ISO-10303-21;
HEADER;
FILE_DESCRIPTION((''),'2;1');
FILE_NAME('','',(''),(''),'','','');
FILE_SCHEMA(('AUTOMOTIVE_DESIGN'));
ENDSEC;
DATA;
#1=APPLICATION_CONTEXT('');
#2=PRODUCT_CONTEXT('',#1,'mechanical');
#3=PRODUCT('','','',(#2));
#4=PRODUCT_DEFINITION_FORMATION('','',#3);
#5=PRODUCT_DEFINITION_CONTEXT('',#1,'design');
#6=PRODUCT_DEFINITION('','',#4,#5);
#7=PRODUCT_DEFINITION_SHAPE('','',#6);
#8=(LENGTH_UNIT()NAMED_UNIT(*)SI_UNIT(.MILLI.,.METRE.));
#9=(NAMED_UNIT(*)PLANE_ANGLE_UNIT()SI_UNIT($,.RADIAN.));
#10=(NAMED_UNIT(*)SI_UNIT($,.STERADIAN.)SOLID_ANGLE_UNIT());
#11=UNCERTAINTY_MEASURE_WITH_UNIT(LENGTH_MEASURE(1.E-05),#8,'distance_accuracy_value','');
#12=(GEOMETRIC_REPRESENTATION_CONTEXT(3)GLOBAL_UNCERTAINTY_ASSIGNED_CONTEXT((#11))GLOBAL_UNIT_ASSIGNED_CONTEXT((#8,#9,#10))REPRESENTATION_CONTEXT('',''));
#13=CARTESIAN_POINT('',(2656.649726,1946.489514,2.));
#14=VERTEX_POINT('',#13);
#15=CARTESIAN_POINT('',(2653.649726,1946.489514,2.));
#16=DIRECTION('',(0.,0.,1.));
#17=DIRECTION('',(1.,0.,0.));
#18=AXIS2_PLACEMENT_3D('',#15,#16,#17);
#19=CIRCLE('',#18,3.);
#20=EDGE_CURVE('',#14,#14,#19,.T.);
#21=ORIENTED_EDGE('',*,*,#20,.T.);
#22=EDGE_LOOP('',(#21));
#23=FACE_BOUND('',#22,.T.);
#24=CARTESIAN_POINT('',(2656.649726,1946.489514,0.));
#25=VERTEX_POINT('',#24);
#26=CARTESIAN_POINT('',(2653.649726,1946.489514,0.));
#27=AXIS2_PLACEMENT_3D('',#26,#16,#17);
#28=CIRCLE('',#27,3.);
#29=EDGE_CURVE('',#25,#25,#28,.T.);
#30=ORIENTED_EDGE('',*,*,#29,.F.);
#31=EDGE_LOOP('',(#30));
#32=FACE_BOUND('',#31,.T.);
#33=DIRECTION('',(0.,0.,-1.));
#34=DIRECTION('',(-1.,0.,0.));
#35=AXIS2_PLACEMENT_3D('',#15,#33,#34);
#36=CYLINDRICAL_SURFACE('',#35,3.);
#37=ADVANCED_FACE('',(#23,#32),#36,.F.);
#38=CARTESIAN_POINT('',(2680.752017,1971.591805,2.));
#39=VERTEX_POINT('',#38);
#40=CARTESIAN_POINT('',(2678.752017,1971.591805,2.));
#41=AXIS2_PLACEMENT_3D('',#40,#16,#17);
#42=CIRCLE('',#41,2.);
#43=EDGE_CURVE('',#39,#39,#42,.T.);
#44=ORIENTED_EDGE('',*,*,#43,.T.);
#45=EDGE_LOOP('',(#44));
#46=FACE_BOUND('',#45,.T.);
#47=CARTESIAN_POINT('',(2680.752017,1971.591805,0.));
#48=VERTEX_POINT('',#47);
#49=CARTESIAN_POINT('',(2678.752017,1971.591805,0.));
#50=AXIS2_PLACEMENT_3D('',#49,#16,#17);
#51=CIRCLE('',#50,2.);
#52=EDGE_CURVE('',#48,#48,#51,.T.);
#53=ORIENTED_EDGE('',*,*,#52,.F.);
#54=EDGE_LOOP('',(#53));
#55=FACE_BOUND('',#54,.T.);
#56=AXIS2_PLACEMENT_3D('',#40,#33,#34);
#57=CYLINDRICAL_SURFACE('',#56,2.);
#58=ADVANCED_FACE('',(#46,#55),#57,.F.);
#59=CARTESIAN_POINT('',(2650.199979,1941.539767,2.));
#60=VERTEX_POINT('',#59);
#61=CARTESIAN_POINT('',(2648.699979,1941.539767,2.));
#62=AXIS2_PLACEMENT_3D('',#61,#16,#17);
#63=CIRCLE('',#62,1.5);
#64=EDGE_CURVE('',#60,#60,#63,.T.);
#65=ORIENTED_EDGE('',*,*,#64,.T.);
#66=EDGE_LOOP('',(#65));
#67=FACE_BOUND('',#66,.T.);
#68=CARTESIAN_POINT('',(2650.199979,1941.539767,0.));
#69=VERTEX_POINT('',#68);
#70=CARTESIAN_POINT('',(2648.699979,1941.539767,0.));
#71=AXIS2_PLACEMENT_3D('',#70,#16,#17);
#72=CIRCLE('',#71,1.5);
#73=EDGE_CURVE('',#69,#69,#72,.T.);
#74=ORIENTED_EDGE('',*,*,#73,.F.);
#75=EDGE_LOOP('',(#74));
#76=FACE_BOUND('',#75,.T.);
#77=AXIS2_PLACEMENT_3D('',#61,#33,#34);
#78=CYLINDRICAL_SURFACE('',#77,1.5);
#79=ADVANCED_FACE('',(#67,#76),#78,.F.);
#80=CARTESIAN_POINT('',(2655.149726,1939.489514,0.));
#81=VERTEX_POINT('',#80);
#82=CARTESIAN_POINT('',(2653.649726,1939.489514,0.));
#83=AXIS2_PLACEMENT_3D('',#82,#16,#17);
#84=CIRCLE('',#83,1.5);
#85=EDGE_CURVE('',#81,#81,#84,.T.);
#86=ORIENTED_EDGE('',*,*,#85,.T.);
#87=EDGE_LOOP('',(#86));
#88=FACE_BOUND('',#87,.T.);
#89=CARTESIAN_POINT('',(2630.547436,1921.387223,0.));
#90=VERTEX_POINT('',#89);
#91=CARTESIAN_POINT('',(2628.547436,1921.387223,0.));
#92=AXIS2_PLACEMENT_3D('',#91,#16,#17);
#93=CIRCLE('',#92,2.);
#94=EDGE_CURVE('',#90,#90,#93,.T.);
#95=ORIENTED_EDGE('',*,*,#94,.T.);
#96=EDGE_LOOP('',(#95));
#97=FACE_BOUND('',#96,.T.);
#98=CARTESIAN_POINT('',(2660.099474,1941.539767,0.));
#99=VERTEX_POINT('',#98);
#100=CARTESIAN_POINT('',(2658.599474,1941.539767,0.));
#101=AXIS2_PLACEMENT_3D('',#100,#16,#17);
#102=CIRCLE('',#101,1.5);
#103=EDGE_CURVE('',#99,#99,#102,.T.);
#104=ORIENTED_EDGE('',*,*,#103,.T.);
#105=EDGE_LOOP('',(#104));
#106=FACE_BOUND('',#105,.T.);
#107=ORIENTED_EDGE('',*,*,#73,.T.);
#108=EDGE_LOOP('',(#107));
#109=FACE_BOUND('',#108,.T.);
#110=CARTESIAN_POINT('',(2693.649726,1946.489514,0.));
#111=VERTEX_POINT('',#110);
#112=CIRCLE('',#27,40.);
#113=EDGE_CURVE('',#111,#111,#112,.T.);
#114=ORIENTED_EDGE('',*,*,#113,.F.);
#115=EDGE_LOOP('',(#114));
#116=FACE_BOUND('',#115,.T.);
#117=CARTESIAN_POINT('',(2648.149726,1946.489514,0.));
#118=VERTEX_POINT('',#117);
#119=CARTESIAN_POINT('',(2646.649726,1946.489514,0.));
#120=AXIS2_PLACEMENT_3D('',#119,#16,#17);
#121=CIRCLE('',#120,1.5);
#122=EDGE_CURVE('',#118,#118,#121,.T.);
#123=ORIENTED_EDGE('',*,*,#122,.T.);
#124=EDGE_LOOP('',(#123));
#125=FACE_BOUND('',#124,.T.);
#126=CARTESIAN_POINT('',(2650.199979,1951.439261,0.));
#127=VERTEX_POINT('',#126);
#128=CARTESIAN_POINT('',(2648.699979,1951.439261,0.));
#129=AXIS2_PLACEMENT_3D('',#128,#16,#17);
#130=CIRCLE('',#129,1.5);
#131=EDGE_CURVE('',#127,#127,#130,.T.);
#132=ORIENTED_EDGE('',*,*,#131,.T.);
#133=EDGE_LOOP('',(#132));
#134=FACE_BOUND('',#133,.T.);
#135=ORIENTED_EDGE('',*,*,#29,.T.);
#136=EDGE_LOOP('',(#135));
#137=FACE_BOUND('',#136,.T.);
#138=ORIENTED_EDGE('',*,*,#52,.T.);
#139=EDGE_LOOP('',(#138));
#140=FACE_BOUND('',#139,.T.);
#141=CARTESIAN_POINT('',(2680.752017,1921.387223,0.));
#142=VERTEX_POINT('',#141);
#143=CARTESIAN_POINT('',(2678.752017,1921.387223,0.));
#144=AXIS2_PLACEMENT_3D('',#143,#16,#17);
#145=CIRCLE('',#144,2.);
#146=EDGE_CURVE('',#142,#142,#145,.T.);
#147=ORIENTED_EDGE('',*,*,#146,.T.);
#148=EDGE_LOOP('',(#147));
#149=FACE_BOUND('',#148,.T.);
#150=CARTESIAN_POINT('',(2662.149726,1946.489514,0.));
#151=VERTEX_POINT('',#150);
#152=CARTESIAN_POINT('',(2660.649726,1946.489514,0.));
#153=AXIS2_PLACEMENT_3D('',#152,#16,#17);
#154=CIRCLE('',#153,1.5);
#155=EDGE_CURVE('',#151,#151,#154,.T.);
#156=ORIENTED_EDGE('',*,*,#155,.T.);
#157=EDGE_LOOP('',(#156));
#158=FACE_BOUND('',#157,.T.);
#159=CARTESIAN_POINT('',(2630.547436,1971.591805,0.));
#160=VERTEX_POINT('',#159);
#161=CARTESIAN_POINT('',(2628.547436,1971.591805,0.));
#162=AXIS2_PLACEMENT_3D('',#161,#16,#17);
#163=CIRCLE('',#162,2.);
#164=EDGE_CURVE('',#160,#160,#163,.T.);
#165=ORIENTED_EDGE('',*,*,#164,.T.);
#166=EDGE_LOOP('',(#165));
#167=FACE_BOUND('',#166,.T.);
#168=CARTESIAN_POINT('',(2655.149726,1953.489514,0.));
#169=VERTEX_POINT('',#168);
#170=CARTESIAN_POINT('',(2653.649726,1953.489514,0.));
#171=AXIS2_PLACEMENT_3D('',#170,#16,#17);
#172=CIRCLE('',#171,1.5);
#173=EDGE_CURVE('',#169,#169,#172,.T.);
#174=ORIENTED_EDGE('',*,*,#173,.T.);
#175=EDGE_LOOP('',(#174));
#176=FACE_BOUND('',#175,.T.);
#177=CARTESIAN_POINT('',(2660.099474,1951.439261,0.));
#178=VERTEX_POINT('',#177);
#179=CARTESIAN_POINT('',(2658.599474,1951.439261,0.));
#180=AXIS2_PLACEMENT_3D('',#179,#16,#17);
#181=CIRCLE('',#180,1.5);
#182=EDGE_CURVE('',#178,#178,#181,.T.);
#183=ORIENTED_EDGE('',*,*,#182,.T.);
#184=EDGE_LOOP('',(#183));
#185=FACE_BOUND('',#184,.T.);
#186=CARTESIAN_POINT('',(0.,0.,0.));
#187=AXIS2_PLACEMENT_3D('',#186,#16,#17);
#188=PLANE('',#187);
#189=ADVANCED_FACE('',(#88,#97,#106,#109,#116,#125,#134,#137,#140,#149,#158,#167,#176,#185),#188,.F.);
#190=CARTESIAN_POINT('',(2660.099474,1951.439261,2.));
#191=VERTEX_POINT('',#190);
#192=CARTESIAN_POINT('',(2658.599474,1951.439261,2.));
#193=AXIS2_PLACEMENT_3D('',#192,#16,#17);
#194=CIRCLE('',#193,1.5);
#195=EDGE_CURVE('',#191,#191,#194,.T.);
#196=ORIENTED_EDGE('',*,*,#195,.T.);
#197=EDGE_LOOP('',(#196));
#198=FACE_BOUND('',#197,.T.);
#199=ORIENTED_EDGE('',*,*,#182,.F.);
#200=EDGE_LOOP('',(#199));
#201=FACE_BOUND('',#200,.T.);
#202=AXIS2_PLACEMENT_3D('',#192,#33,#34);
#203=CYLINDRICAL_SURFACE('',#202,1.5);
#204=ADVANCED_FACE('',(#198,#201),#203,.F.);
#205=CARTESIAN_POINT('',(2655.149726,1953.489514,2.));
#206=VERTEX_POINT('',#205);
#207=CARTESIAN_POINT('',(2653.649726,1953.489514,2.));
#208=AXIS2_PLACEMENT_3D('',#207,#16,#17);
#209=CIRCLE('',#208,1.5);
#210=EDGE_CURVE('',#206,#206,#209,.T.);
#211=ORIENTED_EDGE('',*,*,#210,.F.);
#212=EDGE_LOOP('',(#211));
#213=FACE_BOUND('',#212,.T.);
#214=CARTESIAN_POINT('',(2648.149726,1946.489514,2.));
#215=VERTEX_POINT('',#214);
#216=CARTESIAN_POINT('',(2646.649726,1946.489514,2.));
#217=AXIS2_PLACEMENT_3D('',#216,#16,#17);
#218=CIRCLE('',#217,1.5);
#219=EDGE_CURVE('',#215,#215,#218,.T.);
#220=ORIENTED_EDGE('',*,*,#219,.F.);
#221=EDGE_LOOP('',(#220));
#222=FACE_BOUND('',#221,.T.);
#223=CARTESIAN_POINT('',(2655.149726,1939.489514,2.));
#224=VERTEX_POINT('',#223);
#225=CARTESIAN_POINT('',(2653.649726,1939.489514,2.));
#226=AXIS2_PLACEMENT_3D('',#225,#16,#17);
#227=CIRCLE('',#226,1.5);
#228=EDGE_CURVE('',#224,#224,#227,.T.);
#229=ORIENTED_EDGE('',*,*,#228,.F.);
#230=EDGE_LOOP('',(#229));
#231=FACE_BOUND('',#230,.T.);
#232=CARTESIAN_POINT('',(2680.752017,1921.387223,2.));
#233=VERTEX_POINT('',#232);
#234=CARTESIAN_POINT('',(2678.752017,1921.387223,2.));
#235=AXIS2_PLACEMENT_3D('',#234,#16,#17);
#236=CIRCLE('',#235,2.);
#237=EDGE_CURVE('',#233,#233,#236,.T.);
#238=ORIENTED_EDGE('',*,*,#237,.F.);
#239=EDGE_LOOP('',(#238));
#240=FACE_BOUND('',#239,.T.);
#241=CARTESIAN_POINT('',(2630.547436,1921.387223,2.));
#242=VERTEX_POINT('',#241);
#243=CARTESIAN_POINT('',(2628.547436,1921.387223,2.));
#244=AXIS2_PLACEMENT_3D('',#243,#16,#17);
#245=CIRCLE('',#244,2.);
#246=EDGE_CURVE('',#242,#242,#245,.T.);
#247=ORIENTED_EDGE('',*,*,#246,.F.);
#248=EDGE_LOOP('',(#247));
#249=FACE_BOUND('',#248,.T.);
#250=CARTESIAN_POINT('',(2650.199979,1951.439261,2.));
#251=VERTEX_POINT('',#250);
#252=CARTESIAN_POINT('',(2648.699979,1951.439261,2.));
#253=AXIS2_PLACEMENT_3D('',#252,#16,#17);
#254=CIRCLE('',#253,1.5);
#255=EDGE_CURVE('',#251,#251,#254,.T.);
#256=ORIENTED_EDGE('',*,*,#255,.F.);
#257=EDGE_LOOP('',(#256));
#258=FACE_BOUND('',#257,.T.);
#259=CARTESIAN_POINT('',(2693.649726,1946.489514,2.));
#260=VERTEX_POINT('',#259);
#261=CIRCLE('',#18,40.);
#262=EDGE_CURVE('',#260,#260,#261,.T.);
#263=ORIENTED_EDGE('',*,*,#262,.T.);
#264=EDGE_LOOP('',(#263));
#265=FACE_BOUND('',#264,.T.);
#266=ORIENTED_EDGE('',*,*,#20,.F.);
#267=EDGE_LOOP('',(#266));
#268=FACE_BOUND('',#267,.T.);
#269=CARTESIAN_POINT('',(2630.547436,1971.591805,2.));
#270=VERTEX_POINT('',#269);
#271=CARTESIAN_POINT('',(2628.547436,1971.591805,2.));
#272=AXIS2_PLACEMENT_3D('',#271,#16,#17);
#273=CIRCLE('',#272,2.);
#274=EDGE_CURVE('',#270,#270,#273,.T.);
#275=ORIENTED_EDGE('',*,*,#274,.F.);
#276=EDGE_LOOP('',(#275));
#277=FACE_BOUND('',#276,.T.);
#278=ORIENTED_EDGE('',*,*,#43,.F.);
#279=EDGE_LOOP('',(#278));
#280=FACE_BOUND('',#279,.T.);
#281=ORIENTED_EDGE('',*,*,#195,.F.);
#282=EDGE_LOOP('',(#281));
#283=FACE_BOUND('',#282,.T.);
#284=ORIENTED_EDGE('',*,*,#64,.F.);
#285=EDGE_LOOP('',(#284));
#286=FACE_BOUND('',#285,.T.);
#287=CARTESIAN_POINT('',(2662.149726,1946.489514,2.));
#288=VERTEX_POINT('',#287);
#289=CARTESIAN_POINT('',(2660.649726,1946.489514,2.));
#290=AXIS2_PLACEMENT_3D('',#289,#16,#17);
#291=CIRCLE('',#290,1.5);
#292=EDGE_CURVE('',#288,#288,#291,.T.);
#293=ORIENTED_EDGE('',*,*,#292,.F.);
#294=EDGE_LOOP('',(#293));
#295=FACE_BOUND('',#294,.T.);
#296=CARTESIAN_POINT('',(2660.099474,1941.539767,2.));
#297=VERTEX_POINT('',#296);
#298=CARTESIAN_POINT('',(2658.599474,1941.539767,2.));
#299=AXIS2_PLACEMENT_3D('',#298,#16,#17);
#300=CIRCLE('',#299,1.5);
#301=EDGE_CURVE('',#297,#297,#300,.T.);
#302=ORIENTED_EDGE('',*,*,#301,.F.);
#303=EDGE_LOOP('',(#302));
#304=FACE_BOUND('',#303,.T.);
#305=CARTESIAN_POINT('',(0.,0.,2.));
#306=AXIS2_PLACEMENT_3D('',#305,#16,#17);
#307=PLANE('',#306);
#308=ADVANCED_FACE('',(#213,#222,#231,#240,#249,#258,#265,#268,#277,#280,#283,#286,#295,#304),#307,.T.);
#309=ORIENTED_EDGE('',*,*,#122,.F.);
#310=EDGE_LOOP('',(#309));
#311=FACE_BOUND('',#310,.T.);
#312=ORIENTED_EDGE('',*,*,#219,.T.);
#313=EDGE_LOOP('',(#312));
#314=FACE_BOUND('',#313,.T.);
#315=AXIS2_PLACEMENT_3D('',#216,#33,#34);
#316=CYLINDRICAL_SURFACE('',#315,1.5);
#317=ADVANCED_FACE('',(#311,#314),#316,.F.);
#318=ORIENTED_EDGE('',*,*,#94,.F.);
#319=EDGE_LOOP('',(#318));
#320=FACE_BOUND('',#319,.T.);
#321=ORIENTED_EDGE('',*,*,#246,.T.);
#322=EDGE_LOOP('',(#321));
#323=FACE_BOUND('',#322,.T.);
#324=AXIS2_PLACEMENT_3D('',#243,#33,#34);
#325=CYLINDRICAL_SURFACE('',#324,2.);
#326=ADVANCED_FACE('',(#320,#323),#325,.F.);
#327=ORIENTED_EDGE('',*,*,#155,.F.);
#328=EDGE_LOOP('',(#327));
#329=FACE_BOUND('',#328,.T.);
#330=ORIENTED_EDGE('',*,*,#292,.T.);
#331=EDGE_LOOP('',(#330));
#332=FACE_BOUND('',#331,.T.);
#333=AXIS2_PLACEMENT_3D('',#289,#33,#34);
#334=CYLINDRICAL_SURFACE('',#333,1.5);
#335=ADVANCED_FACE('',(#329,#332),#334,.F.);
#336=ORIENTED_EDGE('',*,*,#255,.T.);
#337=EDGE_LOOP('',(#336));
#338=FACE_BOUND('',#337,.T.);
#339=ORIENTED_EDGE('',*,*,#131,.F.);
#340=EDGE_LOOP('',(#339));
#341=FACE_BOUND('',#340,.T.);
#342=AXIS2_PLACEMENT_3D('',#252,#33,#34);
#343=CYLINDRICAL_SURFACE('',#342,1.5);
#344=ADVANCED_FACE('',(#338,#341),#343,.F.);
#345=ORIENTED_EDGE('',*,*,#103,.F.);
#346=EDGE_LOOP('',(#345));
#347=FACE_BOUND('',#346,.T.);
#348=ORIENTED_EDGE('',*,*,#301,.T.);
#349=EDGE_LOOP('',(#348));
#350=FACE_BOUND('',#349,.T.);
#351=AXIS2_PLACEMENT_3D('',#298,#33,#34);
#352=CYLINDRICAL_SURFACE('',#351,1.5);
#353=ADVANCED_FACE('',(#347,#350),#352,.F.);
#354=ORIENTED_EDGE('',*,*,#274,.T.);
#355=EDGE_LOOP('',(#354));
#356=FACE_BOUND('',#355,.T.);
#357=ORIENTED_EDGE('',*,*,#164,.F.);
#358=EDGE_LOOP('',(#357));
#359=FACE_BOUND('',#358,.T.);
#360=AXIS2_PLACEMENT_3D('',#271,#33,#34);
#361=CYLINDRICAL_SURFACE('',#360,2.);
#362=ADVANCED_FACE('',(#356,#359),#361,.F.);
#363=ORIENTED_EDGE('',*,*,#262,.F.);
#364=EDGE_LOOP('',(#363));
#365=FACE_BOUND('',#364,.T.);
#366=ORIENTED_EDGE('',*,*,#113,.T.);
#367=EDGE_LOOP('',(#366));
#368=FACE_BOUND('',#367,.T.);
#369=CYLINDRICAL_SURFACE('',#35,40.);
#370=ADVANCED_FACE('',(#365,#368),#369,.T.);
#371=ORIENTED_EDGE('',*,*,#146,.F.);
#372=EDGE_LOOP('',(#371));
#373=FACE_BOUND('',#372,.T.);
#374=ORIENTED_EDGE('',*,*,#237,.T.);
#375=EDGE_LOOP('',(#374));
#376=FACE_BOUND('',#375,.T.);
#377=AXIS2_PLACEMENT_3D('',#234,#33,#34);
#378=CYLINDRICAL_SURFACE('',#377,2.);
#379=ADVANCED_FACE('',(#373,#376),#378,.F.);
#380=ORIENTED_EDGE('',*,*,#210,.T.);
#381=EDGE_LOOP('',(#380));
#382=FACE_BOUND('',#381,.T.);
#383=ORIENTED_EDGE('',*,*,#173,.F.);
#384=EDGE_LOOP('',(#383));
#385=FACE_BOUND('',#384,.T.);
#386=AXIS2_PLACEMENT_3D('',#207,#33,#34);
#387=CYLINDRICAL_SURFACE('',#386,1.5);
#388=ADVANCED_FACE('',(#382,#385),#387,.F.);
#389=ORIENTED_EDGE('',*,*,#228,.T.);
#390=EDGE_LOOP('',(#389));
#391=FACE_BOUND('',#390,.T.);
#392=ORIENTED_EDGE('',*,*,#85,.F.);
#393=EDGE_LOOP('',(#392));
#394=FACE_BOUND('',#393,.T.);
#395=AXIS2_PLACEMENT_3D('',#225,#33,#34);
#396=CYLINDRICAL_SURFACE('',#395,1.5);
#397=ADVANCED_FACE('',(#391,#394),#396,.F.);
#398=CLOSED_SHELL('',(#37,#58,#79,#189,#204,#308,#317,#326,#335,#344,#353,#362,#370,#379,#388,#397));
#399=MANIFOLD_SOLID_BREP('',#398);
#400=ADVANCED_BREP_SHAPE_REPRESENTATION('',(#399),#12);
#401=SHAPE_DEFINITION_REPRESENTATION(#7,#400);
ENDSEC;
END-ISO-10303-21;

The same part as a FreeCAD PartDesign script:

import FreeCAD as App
import Part
import Sketcher
from FreeCAD import Vector
Q = App.Units.Quantity

doc = App.newDocument("Part")
body = doc.addObject("PartDesign::Body", "Body")

# Sketch on XY plane
sketch1 = body.newObject("Sketcher::SketchObject", "Sketch")
sketch1.AttachmentSupport = (doc.getObject("XY_Plane"), [""])
sketch1.MapMode = "FlatFace"
sketch1.addGeometry([
    Part.Circle(Vector(2653.649726, 1946.489514, 0), Vector(0, 0, 1), 40),  # 0
    Part.Circle(Vector(2628.547436, 1921.387223, 0), Vector(0, 0, 1), 2),  # 1
    Part.Circle(Vector(2653.649726, 1939.489514, 0), Vector(0, 0, 1), 1.5),  # 2
    Part.Circle(Vector(2646.649726, 1946.489514, 0), Vector(0, 0, 1), 1.5),  # 3
    Part.Circle(Vector(2648.699979, 1941.539767, 0), Vector(0, 0, 1), 1.5),  # 4
    Part.Circle(Vector(2653.649726, 1946.489514, 0), Vector(0, 0, 1), 3),  # 5
    Part.Circle(Vector(2678.752017, 1921.387223, 0), Vector(0, 0, 1), 2),  # 6
    Part.Circle(Vector(2658.599474, 1941.539767, 0), Vector(0, 0, 1), 1.5),  # 7
    Part.Circle(Vector(2660.649726, 1946.489514, 0), Vector(0, 0, 1), 1.5),  # 8
    Part.Circle(Vector(2648.699979, 1951.439261, 0), Vector(0, 0, 1), 1.5),  # 9
    Part.Circle(Vector(2653.649726, 1953.489514, 0), Vector(0, 0, 1), 1.5),  # 10
    Part.Circle(Vector(2628.547436, 1971.591805, 0), Vector(0, 0, 1), 2),  # 11
    Part.Circle(Vector(2658.599474, 1951.439261, 0), Vector(0, 0, 1), 1.5),  # 12
    Part.Circle(Vector(2678.752017, 1971.591805, 0), Vector(0, 0, 1), 2),  # 13
], False)
sketch1.addConstraint([
    Sketcher.Constraint("Coincident", 5, 3, 0, 3),
    Sketcher.Constraint("Equal", 2, 3),
    Sketcher.Constraint("Equal", 3, 4),
    Sketcher.Constraint("Equal", 1, 6),
    Sketcher.Constraint("Equal", 4, 7),
    Sketcher.Constraint("Equal", 7, 8),
    Sketcher.Constraint("Equal", 8, 9),
    Sketcher.Constraint("Equal", 9, 10),
    Sketcher.Constraint("Equal", 6, 11),
    Sketcher.Constraint("Equal", 10, 12),
    Sketcher.Constraint("Equal", 11, 13),
    Sketcher.Constraint("Horizontal", 0, 3, 3, 3),
    Sketcher.Constraint("Horizontal", 1, 3, 6, 3),
    Sketcher.Constraint("Horizontal", 4, 3, 7, 3),
    Sketcher.Constraint("Horizontal", 5, 3, 8, 3),
    Sketcher.Constraint("Horizontal", 9, 3, 12, 3),
    Sketcher.Constraint("Horizontal", 11, 3, 13, 3),
    Sketcher.Constraint("Vertical", 0, 3, 2, 3),
    Sketcher.Constraint("Vertical", 4, 3, 9, 3),
    Sketcher.Constraint("Vertical", 5, 3, 10, 3),
    Sketcher.Constraint("Vertical", 1, 3, 11, 3),
    Sketcher.Constraint("Vertical", 7, 3, 12, 3),
    Sketcher.Constraint("Vertical", 6, 3, 13, 3),
    Sketcher.Constraint("Diameter", 0, Q("80 mm")),
    Sketcher.Constraint("Diameter", 1, Q("4 mm")),
    Sketcher.Constraint("Diameter", 2, Q("3 mm")),
    Sketcher.Constraint("Diameter", 5, Q("6 mm")),
    Sketcher.Constraint("DistanceY", 2, 3, 0, 3, Q("7 mm")),
    Sketcher.Constraint("DistanceX", 3, 3, 0, 3, Q("7 mm")),
    Sketcher.Constraint("DistanceX", 0, 3, 8, 3, Q("7 mm")),
    Sketcher.Constraint("DistanceY", 0, 3, 10, 3, Q("7 mm")),
    Sketcher.Constraint("DistanceX", -1, 1, 4, 3, Q("2648.699979 mm")),
    Sketcher.Constraint("DistanceY", -1, 1, 9, 3, Q("1951.439261 mm")),
    Sketcher.Constraint("DistanceX", 1, 3, 0, 3, Q("25.102291 mm")),
    Sketcher.Constraint("DistanceY", 1, 3, 0, 3, Q("25.102291 mm")),
    Sketcher.Constraint("DistanceX", 2, 3, 6, 3, Q("25.102291 mm")),
    Sketcher.Constraint("DistanceX", 4, 3, 6, 3, Q("30.052038 mm")),
    Sketcher.Constraint("DistanceY", 10, 3, 11, 3, Q("18.102291 mm")),
    Sketcher.Constraint("DistanceY", -1, 1, 0, 3, Q("1946.489514 mm")),
    Sketcher.Constraint("DistanceY", -1, 1, 4, 3, Q("1941.539767 mm")),
    Sketcher.Constraint("DistanceX", -1, 1, 7, 3, Q("2658.599474 mm")),
])
pad1 = body.newObject("PartDesign::Pad", "Pad")
pad1.Profile = sketch1
pad1.Length = 2

doc.recompute()
